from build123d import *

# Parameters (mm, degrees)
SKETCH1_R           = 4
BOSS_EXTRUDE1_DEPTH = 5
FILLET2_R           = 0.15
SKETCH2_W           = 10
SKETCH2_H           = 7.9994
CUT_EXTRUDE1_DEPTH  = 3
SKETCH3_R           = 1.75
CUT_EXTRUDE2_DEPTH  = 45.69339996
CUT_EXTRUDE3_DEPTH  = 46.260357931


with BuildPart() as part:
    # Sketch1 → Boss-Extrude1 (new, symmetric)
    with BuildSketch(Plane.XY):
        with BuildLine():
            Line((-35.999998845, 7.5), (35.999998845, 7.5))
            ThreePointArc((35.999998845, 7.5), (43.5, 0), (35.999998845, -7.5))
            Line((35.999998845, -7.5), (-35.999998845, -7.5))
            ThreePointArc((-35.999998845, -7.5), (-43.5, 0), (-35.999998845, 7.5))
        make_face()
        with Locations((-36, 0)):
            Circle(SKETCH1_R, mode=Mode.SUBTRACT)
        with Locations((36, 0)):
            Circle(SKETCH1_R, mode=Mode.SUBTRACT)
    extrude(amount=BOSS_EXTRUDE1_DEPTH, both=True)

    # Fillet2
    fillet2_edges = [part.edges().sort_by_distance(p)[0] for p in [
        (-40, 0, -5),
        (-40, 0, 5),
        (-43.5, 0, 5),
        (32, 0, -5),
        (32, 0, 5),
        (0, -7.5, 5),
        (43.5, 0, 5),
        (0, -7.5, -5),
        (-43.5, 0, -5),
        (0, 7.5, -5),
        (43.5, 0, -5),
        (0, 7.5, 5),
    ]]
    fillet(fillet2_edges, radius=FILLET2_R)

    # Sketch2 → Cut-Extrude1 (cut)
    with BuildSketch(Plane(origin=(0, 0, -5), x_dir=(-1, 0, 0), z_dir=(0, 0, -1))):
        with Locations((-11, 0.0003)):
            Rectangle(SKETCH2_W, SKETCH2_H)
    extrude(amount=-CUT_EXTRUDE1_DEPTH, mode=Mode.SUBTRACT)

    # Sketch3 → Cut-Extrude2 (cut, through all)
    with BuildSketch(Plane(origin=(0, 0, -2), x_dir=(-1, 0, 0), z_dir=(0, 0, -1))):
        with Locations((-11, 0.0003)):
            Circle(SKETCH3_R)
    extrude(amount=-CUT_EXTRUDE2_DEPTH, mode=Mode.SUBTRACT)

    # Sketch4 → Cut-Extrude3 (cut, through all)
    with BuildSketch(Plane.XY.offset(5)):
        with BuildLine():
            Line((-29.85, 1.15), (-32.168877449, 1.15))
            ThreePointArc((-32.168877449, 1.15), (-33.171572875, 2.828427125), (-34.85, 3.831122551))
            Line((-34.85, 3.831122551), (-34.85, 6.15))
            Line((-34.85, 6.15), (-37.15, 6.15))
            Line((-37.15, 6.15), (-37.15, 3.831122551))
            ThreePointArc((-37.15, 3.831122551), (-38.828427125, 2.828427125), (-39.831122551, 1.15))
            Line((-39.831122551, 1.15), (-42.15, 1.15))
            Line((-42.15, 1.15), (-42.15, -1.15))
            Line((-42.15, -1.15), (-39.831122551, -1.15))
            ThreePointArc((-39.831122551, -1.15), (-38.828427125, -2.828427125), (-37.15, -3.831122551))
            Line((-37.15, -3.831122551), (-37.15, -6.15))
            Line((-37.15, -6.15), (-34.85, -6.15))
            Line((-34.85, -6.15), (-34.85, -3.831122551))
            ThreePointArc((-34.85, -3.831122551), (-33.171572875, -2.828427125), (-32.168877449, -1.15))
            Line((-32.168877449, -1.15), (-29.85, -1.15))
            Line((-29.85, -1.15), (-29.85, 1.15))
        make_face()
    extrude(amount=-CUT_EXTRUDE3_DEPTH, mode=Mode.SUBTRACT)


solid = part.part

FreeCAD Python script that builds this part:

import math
import FreeCAD as App
import Part
import Sketcher


def edges_at(feature, points):
    """Names of the edges that pass closest to the given points."""
    edges = feature.Shape.Edges
    near = lambda p: min(range(len(edges)), key=lambda i: edges[i].distToShape(Part.Vertex(*p))[0])
    return sorted({f"Edge{near(p) + 1}" for p in points})


def add_polygon(sketch, points):
    """Adds a closed chain of lines whose ends are joined by coincident constraints."""
    first, n = sketch.GeometryCount, len(points)
    for a, b in zip(points, points[1:] + points[:1]):
        sketch.addGeometry(Part.LineSegment(App.Vector(*a, 0), App.Vector(*b, 0)), False)
    for i in range(n):
        sketch.addConstraint(Sketcher.Constraint("Coincident", first + i, 2, first + (i + 1) % n, 1))

doc = App.newDocument("Part")
params = doc.addObject("Spreadsheet::Sheet", "Params")
for row, (alias, value) in enumerate([
    ("sketch1_diameter", "8 mm"),
    ("sketch1_radius", "7.5 mm"),
    ("pad1_length", "10 mm"),
    ("fillet_radius", "0.15 mm"),
    ("sketch2_width", "10 mm"),
    ("pocket1_length", "3 mm"),
    ("sketch3_diameter", "3.5 mm"),
    ("sketch4_radius", "4 mm"),
    ("sketch4_width", "2.3 mm"),
], start=1):
    params.set(f"A{row}", alias)
    params.set(f"B{row}", "=" + value)
    params.setAlias(f"B{row}", alias)

body = doc.addObject("PartDesign::Body", "Body")

sketch1 = body.newObject("Sketcher::SketchObject", "Sketch")
sketch1.AttachmentSupport = (doc.getObject("XY_Plane"), [""])
sketch1.MapMode = "FlatFace"
sketch1.addGeometry([
    Part.LineSegment(App.Vector(36, 7.5, 0), App.Vector(-36, 7.5, 0)),
    Part.ArcOfCircle(Part.Circle(App.Vector(-36, 0, 0), App.Vector(0, 0, 1), 7.5), math.radians(90), math.radians(270)),
    Part.LineSegment(App.Vector(-36, -7.5, 0), App.Vector(36, -7.5, 0)),
    Part.ArcOfCircle(Part.Circle(App.Vector(36, 0, 0), App.Vector(0, 0, 1), 7.5), math.radians(-90), math.radians(90)),
    Part.Circle(App.Vector(36, 0, 0), App.Vector(0, 0, 1), 4),
    Part.Circle(App.Vector(-36, 0, 0), App.Vector(0, 0, 1), 4),
], False)
sketch1.addConstraint([
    Sketcher.Constraint("Tangent", 0, 2, 1, 1),
    Sketcher.Constraint("Tangent", 1, 2, 2, 1),
    Sketcher.Constraint("Tangent", 2, 2, 3, 1),
    Sketcher.Constraint("Tangent", 3, 2, 0, 1),
    Sketcher.Constraint("Horizontal", 0),
    Sketcher.Constraint("Horizontal", 2),
    Sketcher.Constraint("Coincident", 4, 3, 3, 3),
    Sketcher.Constraint("Coincident", 5, 3, 1, 3),
    Sketcher.Constraint("Equal", 4, 5),
    Sketcher.Constraint("Symmetric", 1, 3, 3, 3, -1, 1),
    Sketcher.Constraint("Diameter", 4, 8.0),
    Sketcher.Constraint("Radius", 1, 7.5),
    Sketcher.Constraint("DistanceX", 1, 3, -1, 1, 36.0),
])
sketch1.setExpression("Constraints[10]", "Params.sketch1_diameter")
sketch1.setExpression("Constraints[11]", "Params.sketch1_radius")
pad1 = body.newObject("PartDesign::Pad", "Pad")
pad1.Profile = sketch1
pad1.setExpression("Length", "Params.pad1_length")
pad1.Midplane = True
doc.recompute()

fillet = body.newObject("PartDesign::Fillet", "Fillet")
fillet.Base = (pad1, edges_at(pad1, [
    (-40, 0, -5),
    (-40, 0, 5),
    (-43.5, 0, 5),
    (32, 0, -5),
    (32, 0, 5),
    (0, -7.5, 5),
    (43.5, 0, 5),
    (0, -7.5, -5),
    (-43.5, 0, -5),
    (0, 7.5, -5),
    (43.5, 0, -5),
    (0, 7.5, 5),
]))
fillet.setExpression("Radius", "Params.fillet_radius")

sketch2 = body.newObject("Sketcher::SketchObject", "Sketch001")
sketch2.AttachmentSupport = (doc.getObject("XY_Plane"), [""])
sketch2.MapMode = "FlatFace"
sketch2.AttachmentOffset = App.Placement(App.Vector(0, 0, -5), App.Rotation())
add_polygon(sketch2, [(16, 4), (16, -4), (6, -4), (6, 4)])
sketch2.addConstraint([
    Sketcher.Constraint("Vertical", 0),
    Sketcher.Constraint("Horizontal", 1),
    Sketcher.Constraint("Vertical", 2),
    Sketcher.Constraint("Horizontal", 3),
    Sketcher.Constraint("DistanceX", 1, 2, 1, 1, 10.0),
    Sketcher.Constraint("DistanceX", -1, 1, 0, 2, 16.0),
    Sketcher.Constraint("DistanceY", -1, 1, 2, 2, 4.0),
    Sketcher.Constraint("DistanceY", 0, 2, 0, 1, 7.9994),
])
sketch2.setExpression("Constraints[8]", "Params.sketch2_width")
pocket1 = body.newObject("PartDesign::Pocket", "Pocket")
pocket1.Profile = sketch2
pocket1.setExpression("Length", "Params.pocket1_length")
pocket1.Reversed = True

sketch3 = body.newObject("Sketcher::SketchObject", "Sketch002")
sketch3.AttachmentSupport = (doc.getObject("XY_Plane"), [""])
sketch3.MapMode = "FlatFace"
sketch3.AttachmentOffset = App.Placement(App.Vector(0, 0, -2), App.Rotation())
sketch3.addGeometry(Part.Circle(App.Vector(11, 0, 0), App.Vector(0, 0, 1), 1.8), False)
sketch3.addConstraint([
    Sketcher.Constraint("Diameter", 0, 3.5),
    Sketcher.Constraint("DistanceX", -1, 1, 0, 3, 11.0),
    Sketcher.Constraint("DistanceY", -1, 1, 0, 3, 0.0003),
])
sketch3.setExpression("Constraints[0]", "Params.sketch3_diameter")
pocket2 = body.newObject("PartDesign::Pocket", "Pocket001")
pocket2.Profile = sketch3
pocket2.Type = "ThroughAll"
pocket2.Reversed = True

sketch4 = body.newObject("Sketcher::SketchObject", "Sketch003")
sketch4.AttachmentSupport = (doc.getObject("XY_Plane"), [""])
sketch4.MapMode = "FlatFace"
sketch4.AttachmentOffset = App.Placement(App.Vector(0, 0, 5), App.Rotation())
sketch4.addGeometry([
    Part.LineSegment(App.Vector(-29.9, 1.1, 0), App.Vector(-32.2, 1.1, 0)),
    Part.ArcOfCircle(Part.Circle(App.Vector(-36, 0, 0), App.Vector(0, 0, 1), 4), math.radians(17), math.radians(73)),
    Part.LineSegment(App.Vector(-34.9, 3.8, 0), App.Vector(-34.9, 6.2, 0)),
    Part.LineSegment(App.Vector(-34.9, 6.2, 0), App.Vector(-37.1, 6.2, 0)),
    Part.LineSegment(App.Vector(-37.1, 6.2, 0), App.Vector(-37.1, 3.8, 0)),
    Part.ArcOfCircle(Part.Circle(App.Vector(-36, 0, 0), App.Vector(0, 0, 1), 4), math.radians(107), math.radians(163)),
    Part.LineSegment(App.Vector(-39.8, 1.1, 0), App.Vector(-42.1, 1.1, 0)),
    Part.LineSegment(App.Vector(-42.1, 1.1, 0), App.Vector(-42.1, -1.1, 0)),
    Part.LineSegment(App.Vector(-42.1, -1.1, 0), App.Vector(-39.8, -1.1, 0)),
    Part.ArcOfCircle(Part.Circle(App.Vector(-36, 0, 0), App.Vector(0, 0, 1), 4), math.radians(-163), math.radians(-107)),
    Part.LineSegment(App.Vector(-37.1, -3.8, 0), App.Vector(-37.1, -6.2, 0)),
    Part.LineSegment(App.Vector(-37.1, -6.2, 0), App.Vector(-34.9, -6.2, 0)),
    Part.LineSegment(App.Vector(-34.9, -6.2, 0), App.Vector(-34.9, -3.8, 0)),
    Part.ArcOfCircle(Part.Circle(App.Vector(-36, 0, 0), App.Vector(0, 0, 1), 4), math.radians(-73), math.radians(-17)),
    Part.LineSegment(App.Vector(-32.2, -1.1, 0), App.Vector(-29.9, -1.1, 0)),
    Part.LineSegment(App.Vector(-29.9, -1.1, 0), App.Vector(-29.9, 1.1, 0)),
], False)
sketch4.addConstraint([
    Sketcher.Constraint("Coincident", 0, 2, 1, 1),
    Sketcher.Constraint("Coincident", 1, 2, 2, 1),
    Sketcher.Constraint("Coincident", 2, 2, 3, 1),
    Sketcher.Constraint("Coincident", 3, 2, 4, 1),
    Sketcher.Constraint("Coincident", 4, 2, 5, 1),
    Sketcher.Constraint("Coincident", 5, 2, 6, 1),
    Sketcher.Constraint("Coincident", 6, 2, 7, 1),
    Sketcher.Constraint("Coincident", 7, 2, 8, 1),
    Sketcher.Constraint("Coincident", 8, 2, 9, 1),
    Sketcher.Constraint("Coincident", 9, 2, 10, 1),
    Sketcher.Constraint("Coincident", 10, 2, 11, 1),
    Sketcher.Constraint("Coincident", 11, 2, 12, 1),
    Sketcher.Constraint("Coincident", 12, 2, 13, 1),
    Sketcher.Constraint("Coincident", 13, 2, 14, 1),
    Sketcher.Constraint("Coincident", 14, 2, 15, 1),
    Sketcher.Constraint("Coincident", 15, 2, 0, 1),
    Sketcher.Constraint("Horizontal", 0),
    Sketcher.Constraint("Vertical", 2),
    Sketcher.Constraint("Horizontal", 3),
    Sketcher.Constraint("Vertical", 4),
    Sketcher.Constraint("Horizontal", 6),
    Sketcher.Constraint("Vertical", 7),
    Sketcher.Constraint("Horizontal", 8),
    Sketcher.Constraint("Vertical", 10),
    Sketcher.Constraint("Horizontal", 11),
    Sketcher.Constraint("Vertical", 12),
    Sketcher.Constraint("Horizontal", 14),
    Sketcher.Constraint("Vertical", 15),
    Sketcher.Constraint("Coincident", 5, 3, 1, 3),
    Sketcher.Constraint("Coincident", 9, 3, 1, 3),
    Sketcher.Constraint("Coincident", 13, 3, 1, 3),
    Sketcher.Constraint("Equal", 1, 5),
    Sketcher.Constraint("Equal", 5, 9),
    Sketcher.Constraint("Equal", 9, 13),
    Sketcher.Constraint("Symmetric", 5, 2, 8, 2, -1),
    Sketcher.Constraint("Symmetric", 3, 2, 10, 2, -1),
    Sketcher.Constraint("Horizontal", 1, 2, 4, 2),
    Sketcher.Constraint("Horizontal", 0, 2, 5, 2),
    Sketcher.Constraint("Horizontal", 9, 2, 12, 2),
    Sketcher.Constraint("Horizontal", 8, 2, 13, 2),
    Sketcher.Constraint("Equal", 0, 6),
    Sketcher.Constraint("Equal", 14, 2),
    Sketcher.Constraint("Equal", 11, 7),
    Sketcher.Constraint("Radius", 1, 4.0),
    Sketcher.Constraint("DistanceX", 3, 2, 3, 1, 2.3),
    Sketcher.Constraint("DistanceX", 1, 3, -1, 1, 36.0),
    Sketcher.Constraint("DistanceY", 0, 2, 2, 2, 5.0),
])
sketch4.setExpression("Constraints[43]", "Params.sketch4_radius")
sketch4.setExpression("Constraints[44]", "Params.sketch4_width")
pocket3 = body.newObject("PartDesign::Pocket", "Pocket002")
pocket3.Profile = sketch4
pocket3.Type = "ThroughAll"

doc.recompute()
